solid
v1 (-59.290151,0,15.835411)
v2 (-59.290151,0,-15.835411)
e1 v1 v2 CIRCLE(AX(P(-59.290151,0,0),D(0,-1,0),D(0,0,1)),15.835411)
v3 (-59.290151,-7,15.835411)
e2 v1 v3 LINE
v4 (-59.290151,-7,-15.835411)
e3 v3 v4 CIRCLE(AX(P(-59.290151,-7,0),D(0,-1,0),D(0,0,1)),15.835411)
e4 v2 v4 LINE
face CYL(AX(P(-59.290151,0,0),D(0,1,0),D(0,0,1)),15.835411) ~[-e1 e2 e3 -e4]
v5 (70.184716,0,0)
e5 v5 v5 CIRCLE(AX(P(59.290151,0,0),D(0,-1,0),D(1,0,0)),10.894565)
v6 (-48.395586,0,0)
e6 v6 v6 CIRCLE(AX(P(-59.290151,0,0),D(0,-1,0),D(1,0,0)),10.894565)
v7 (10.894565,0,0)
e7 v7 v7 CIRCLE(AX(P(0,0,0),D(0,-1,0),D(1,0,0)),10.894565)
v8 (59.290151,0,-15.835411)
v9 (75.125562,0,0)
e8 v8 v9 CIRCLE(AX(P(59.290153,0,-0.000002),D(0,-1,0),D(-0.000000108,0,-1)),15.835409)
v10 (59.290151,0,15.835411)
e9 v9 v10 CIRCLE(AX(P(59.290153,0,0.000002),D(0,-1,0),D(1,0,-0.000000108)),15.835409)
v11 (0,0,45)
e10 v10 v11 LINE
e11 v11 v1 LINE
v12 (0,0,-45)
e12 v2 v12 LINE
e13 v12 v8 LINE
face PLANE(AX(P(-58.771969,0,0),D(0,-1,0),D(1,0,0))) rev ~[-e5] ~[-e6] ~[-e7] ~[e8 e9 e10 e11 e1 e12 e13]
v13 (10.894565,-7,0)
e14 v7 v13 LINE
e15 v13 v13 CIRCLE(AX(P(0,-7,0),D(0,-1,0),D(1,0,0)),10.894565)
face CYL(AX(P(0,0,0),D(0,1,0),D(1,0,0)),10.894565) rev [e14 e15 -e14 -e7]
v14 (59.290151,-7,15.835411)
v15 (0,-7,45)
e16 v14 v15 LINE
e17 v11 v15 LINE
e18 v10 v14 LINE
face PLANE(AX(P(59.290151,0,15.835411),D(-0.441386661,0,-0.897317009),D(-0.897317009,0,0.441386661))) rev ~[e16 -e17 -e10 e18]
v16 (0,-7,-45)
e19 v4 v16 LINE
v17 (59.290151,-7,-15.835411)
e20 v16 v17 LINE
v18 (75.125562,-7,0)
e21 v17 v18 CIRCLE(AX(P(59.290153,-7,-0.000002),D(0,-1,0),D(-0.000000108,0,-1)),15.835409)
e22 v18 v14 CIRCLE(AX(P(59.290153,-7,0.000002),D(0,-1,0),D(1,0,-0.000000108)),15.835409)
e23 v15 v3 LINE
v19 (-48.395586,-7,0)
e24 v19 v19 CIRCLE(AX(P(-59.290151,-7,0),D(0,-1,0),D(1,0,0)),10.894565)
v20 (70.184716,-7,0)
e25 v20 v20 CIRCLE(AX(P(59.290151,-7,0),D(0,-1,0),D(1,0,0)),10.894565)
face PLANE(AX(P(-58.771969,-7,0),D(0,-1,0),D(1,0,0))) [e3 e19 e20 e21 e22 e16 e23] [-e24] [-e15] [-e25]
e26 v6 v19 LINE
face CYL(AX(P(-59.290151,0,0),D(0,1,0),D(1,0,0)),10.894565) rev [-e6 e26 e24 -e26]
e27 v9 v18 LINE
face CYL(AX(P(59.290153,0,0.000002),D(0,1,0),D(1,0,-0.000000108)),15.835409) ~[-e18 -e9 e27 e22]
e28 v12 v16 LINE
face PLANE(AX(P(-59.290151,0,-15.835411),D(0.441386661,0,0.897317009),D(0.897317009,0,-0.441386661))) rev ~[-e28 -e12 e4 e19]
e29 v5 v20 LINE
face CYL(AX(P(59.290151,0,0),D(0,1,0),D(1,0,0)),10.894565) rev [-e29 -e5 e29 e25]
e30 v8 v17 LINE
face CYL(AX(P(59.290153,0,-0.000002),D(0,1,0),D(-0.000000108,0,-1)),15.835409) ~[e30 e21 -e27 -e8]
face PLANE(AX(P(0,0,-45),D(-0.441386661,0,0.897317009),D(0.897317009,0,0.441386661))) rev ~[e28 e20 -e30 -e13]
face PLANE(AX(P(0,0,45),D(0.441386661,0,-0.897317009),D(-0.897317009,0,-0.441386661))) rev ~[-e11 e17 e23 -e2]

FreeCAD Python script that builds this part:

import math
import FreeCAD as App
import Part
import Sketcher
from FreeCAD import Vector

doc = App.newDocument("Part")
body = doc.addObject("PartDesign::Body", "Body")

# Sketch on XZ plane
sketch1 = body.newObject("Sketcher::SketchObject", "Sketch")
sketch1.AttachmentSupport = (doc.getObject("XZ_Plane"), [""])
sketch1.MapMode = "FlatFace"
sketch1.addGeometry([
    Part.ArcOfCircle(Part.Circle(Vector(-59, 0, 0), Vector(0, 0, 1), 16), math.radians(90), math.radians(270)),  # 0
    Part.LineSegment(Vector(-59, -16, 0), Vector(0, -45, 0)),  # 1
    Part.LineSegment(Vector(0, -45, 0), Vector(59, -16, 0)),  # 2
    Part.ArcOfCircle(Part.Circle(Vector(59, 0, 0), Vector(0, 0, 1), 16), math.radians(-90), math.radians(0)),  # 3
    Part.ArcOfCircle(Part.Circle(Vector(59, 0, 0), Vector(0, 0, 1), 16), math.radians(0), math.radians(90)),  # 4
    Part.LineSegment(Vector(59, 16, 0), Vector(0, 45, 0)),  # 5
    Part.LineSegment(Vector(0, 45, 0), Vector(-59, 16, 0)),  # 6
    Part.Circle(Vector(-59, 0, 0), Vector(0, 0, 1), 11),  # 7
    Part.Circle(Vector(0, 0, 0), Vector(0, 0, 1), 11),  # 8
    Part.Circle(Vector(59, 0, 0), Vector(0, 0, 1), 11),  # 9
], False)
sketch1.addConstraint([
    Sketcher.Constraint("Coincident", 0, 2, 1, 1),
    Sketcher.Constraint("Coincident", 1, 2, 2, 1),
    Sketcher.Constraint("Coincident", 2, 2, 3, 1),
    Sketcher.Constraint("Tangent", 3, 2, 4, 1),
    Sketcher.Constraint("Coincident", 4, 2, 5, 1),
    Sketcher.Constraint("Coincident", 5, 2, 6, 1),
    Sketcher.Constraint("Coincident", 6, 2, 0, 1),
    Sketcher.Constraint("Coincident", 8, 3, -1, 1),
    Sketcher.Constraint("Coincident", 7, 3, 0, 3),
    Sketcher.Constraint("Coincident", 9, 3, 3, 3),
    Sketcher.Constraint("Equal", 0, 3),
    Sketcher.Constraint("Equal", 3, 4),
    Sketcher.Constraint("Equal", 7, 8),
    Sketcher.Constraint("Equal", 8, 9),
    Sketcher.Constraint("Symmetric", 0, 3, 3, 3, -1, 1),
    Sketcher.Constraint("Symmetric", 1, 2, 5, 2, -1, 1),
    Sketcher.Constraint("Symmetric", 0, 2, 2, 2, -2),
    Sketcher.Constraint("PointOnObject", 1, 2, -2),
    Sketcher.Constraint("PointOnObject", 3, 2, -1),
    Sketcher.Constraint("Parallel", 1, 5),
    Sketcher.Constraint("Parallel", 2, 6),
    Sketcher.Constraint("Vertical", 7, 3, 0, 2),
    Sketcher.Constraint("DistanceY", 1, 2, -1, 1, 45.0),
    Sketcher.Constraint("Diameter", 7, 21.78913),
    Sketcher.Constraint("Radius", 0, 15.835411),
    Sketcher.Constraint("Distance", 1, 66.074922),
])
pad1 = body.newObject("PartDesign::Pad", "Pad")
pad1.Profile = sketch1
pad1.Length = 7

doc.recompute()
